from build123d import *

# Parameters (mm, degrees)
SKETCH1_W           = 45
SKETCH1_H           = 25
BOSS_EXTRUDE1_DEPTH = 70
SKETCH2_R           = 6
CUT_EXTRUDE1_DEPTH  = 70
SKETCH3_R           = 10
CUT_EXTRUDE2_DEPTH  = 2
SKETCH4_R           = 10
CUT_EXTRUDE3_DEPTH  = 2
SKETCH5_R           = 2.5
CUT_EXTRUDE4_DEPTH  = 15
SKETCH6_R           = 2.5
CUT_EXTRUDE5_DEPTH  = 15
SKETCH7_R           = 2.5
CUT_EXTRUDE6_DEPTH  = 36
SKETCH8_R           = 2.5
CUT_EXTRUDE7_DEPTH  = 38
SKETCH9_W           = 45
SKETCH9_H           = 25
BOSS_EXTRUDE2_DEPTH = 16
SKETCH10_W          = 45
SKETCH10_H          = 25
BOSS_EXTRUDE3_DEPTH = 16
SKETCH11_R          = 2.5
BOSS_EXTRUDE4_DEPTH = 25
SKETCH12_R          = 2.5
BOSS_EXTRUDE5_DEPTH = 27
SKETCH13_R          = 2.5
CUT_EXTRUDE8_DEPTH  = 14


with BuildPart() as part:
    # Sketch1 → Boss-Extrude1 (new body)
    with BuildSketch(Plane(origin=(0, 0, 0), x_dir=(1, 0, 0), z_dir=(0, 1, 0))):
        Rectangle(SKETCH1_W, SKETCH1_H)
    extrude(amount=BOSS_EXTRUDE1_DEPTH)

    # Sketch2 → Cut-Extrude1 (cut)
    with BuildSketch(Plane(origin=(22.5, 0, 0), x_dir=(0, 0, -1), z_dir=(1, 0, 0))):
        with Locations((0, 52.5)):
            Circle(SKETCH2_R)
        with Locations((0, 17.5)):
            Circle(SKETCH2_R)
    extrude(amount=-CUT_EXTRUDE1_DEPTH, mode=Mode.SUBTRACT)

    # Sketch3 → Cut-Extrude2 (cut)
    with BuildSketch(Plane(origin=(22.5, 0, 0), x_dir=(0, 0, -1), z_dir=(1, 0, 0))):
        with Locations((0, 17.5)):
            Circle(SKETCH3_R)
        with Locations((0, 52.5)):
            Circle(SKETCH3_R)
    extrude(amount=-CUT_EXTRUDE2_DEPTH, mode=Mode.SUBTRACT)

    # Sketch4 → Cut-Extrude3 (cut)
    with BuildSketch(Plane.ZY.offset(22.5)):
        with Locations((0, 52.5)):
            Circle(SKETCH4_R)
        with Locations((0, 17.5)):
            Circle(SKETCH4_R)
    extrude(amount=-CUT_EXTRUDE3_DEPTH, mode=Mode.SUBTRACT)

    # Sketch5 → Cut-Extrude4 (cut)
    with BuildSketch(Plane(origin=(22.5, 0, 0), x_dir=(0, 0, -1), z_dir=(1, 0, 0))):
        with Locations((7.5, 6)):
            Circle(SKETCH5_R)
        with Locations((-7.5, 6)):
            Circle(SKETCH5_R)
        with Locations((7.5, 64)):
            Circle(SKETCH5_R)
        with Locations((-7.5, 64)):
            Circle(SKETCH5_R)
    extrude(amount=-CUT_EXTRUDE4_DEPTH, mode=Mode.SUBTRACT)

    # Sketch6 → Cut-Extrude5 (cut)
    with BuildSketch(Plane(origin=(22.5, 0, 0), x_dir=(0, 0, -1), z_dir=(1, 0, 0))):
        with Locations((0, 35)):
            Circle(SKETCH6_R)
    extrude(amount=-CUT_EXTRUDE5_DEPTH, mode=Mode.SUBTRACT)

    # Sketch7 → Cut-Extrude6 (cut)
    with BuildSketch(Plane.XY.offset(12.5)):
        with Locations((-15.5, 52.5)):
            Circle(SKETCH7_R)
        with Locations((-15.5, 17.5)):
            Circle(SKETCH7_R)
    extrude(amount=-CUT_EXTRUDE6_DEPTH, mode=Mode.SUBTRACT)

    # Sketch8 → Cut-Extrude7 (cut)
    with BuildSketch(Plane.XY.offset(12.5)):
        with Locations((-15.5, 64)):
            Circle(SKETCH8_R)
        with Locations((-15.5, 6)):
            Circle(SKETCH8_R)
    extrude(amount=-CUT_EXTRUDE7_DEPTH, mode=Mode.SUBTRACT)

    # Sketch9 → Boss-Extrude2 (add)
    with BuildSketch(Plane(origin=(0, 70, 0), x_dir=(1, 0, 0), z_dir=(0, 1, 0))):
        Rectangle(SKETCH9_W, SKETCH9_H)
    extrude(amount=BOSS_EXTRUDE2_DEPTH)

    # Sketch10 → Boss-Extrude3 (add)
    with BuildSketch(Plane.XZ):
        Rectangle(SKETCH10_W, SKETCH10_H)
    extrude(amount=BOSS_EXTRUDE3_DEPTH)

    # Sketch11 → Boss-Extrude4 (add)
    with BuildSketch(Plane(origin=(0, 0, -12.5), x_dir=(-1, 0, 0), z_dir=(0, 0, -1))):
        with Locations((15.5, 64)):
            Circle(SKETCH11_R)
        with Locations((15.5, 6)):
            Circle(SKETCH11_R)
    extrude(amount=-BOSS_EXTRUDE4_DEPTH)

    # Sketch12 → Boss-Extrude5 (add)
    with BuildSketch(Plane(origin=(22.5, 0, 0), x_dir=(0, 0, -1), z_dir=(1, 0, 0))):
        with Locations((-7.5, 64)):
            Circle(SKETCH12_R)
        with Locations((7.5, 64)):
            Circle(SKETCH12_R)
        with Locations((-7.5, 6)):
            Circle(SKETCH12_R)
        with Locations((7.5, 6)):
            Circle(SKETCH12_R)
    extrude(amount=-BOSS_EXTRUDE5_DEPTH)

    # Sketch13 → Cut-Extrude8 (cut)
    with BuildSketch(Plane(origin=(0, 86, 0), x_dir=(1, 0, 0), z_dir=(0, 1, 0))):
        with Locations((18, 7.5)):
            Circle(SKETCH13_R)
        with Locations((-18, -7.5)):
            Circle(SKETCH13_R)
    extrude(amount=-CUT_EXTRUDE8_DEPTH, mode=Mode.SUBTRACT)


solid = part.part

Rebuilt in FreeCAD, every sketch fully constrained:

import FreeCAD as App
import Part
import Sketcher
from FreeCAD import Vector
Q = App.Units.Quantity


def add_polygon(sketch, points):
    """Adds a closed chain of lines whose ends are joined by coincident constraints."""
    first, n = sketch.GeometryCount, len(points)
    for a, b in zip(points, points[1:] + points[:1]):
        sketch.addGeometry(Part.LineSegment(App.Vector(*a, 0), App.Vector(*b, 0)), False)
    for i in range(n):
        sketch.addConstraint(Sketcher.Constraint("Coincident", first + i, 2, first + (i + 1) % n, 1))

doc = App.newDocument("Part")
body = doc.addObject("PartDesign::Body", "Body")

# Sketch on XZ plane
sketch1 = body.newObject("Sketcher::SketchObject", "Sketch")
sketch1.AttachmentSupport = (doc.getObject("XZ_Plane"), [""])
sketch1.MapMode = "FlatFace"
add_polygon(sketch1, [(-22, -12), (-22, 12), (22, 12), (22, -12)])  # lines 0-3
sketch1.addConstraint(Sketcher.Constraint("Vertical", 0))
sketch1.addConstraint(Sketcher.Constraint("Horizontal", 1))
sketch1.addConstraint(Sketcher.Constraint("Vertical", 2))
sketch1.addConstraint(Sketcher.Constraint("Horizontal", 3))
sketch1.addConstraint(Sketcher.Constraint("Symmetric", 0, 2, 2, 2, -1, 1))
sketch1.addConstraint(Sketcher.Constraint("DistanceX", 1, 1, 1, 2, Q("45 mm")))
sketch1.addConstraint(Sketcher.Constraint("DistanceY", 0, 1, 0, 2, Q("25 mm")))
pad1 = body.newObject("PartDesign::Pad", "Pad")
pad1.Profile = sketch1
pad1.Length = 70
pad1.Reversed = True

# Sketch on YZ plane
sketch2 = body.newObject("Sketcher::SketchObject", "Sketch001")
sketch2.AttachmentSupport = (doc.getObject("YZ_Plane"), [""])
sketch2.MapMode = "FlatFace"
sketch2.AttachmentOffset = App.Placement(Vector(0, 0, 22.5), App.Rotation())
sketch2.addGeometry(Part.Circle(Vector(52, 0, 0), Vector(0, 0, 1), 6), False)
sketch2.addGeometry(Part.Circle(Vector(18, 0, 0), Vector(0, 0, 1), 6), False)
sketch2.addConstraint(Sketcher.Constraint("Equal", 0, 1))
sketch2.addConstraint(Sketcher.Constraint("PointOnObject", 0, 3, -1))
sketch2.addConstraint(Sketcher.Constraint("PointOnObject", 1, 3, -1))
sketch2.addConstraint(Sketcher.Constraint("Diameter", 0, Q("12 mm")))
sketch2.addConstraint(Sketcher.Constraint("DistanceX", 1, 3, 0, 3, Q("35 mm")))
sketch2.addConstraint(Sketcher.Constraint("DistanceX", -1, 1, 0, 3, Q("52.5 mm")))
pocket1 = body.newObject("PartDesign::Pocket", "Pocket")
pocket1.Profile = sketch2
pocket1.Length = 70

# Sketch on YZ plane
sketch3 = body.newObject("Sketcher::SketchObject", "Sketch002")
sketch3.AttachmentSupport = (doc.getObject("YZ_Plane"), [""])
sketch3.MapMode = "FlatFace"
sketch3.AttachmentOffset = App.Placement(Vector(0, 0, 22.5), App.Rotation())
sketch3.addGeometry(Part.Circle(Vector(18, 0, 0), Vector(0, 0, 1), 10), False)
sketch3.addGeometry(Part.Circle(Vector(52, 0, 0), Vector(0, 0, 1), 10), False)
sketch3.addConstraint(Sketcher.Constraint("Equal", 0, 1))
sketch3.addConstraint(Sketcher.Constraint("PointOnObject", 0, 3, -1))
sketch3.addConstraint(Sketcher.Constraint("PointOnObject", 1, 3, -1))
sketch3.addConstraint(Sketcher.Constraint("Diameter", 0, Q("20 mm")))
sketch3.addConstraint(Sketcher.Constraint("DistanceX", 0, 3, 1, 3, Q("35 mm")))
sketch3.addConstraint(Sketcher.Constraint("DistanceX", -1, 1, 0, 3, Q("17.5 mm")))
pocket2 = body.newObject("PartDesign::Pocket", "Pocket001")
pocket2.Profile = sketch3
pocket2.Length = 2

# Sketch on YZ plane
sketch4 = body.newObject("Sketcher::SketchObject", "Sketch003")
sketch4.AttachmentSupport = (doc.getObject("YZ_Plane"), [""])
sketch4.MapMode = "FlatFace"
sketch4.AttachmentOffset = App.Placement(Vector(0, 0, -22.5), App.Rotation())
sketch4.addGeometry(Part.Circle(Vector(52, 0, 0), Vector(0, 0, 1), 10), False)
sketch4.addGeometry(Part.Circle(Vector(18, 0, 0), Vector(0, 0, 1), 10), False)
sketch4.addConstraint(Sketcher.Constraint("Equal", 0, 1))
sketch4.addConstraint(Sketcher.Constraint("PointOnObject", 0, 3, -1))
sketch4.addConstraint(Sketcher.Constraint("PointOnObject", 1, 3, -1))
sketch4.addConstraint(Sketcher.Constraint("Diameter", 0, Q("20 mm")))
sketch4.addConstraint(Sketcher.Constraint("DistanceX", 1, 3, 0, 3, Q("35 mm")))
sketch4.addConstraint(Sketcher.Constraint("DistanceX", -1, 1, 0, 3, Q("52.5 mm")))
pocket3 = body.newObject("PartDesign::Pocket", "Pocket002")
pocket3.Profile = sketch4
pocket3.Length = 2
pocket3.Reversed = True

# Sketch on YZ plane
sketch5 = body.newObject("Sketcher::SketchObject", "Sketch004")
sketch5.AttachmentSupport = (doc.getObject("YZ_Plane"), [""])
sketch5.MapMode = "FlatFace"
sketch5.AttachmentOffset = App.Placement(Vector(0, 0, 22.5), App.Rotation())
sketch5.addGeometry(Part.Circle(Vector(6, -7.5, 0), Vector(0, 0, 1), 2.5), False)
sketch5.addGeometry(Part.Circle(Vector(6, 7.5, 0), Vector(0, 0, 1), 2.5), False)
sketch5.addGeometry(Part.Circle(Vector(64, -7.5, 0), Vector(0, 0, 1), 2.5), False)
sketch5.addGeometry(Part.Circle(Vector(64, 7.5, 0), Vector(0, 0, 1), 2.5), False)
sketch5.addConstraint(Sketcher.Constraint("Equal", 0, 1))
sketch5.addConstraint(Sketcher.Constraint("Equal", 1, 2))
sketch5.addConstraint(Sketcher.Constraint("Equal", 2, 3))
sketch5.addConstraint(Sketcher.Constraint("Symmetric", 0, 3, 1, 3, -1))
sketch5.addConstraint(Sketcher.Constraint("Symmetric", 2, 3, 3, 3, -1))
sketch5.addConstraint(Sketcher.Constraint("Horizontal", 0, 3, 2, 3))
sketch5.addConstraint(Sketcher.Constraint("Diameter", 0, Q("5 mm")))
sketch5.addConstraint(Sketcher.Constraint("DistanceX", -1, 1, 0, 3, Q("6 mm")))
sketch5.addConstraint(Sketcher.Constraint("DistanceX", -1, 1, 2, 3, Q("64 mm")))
sketch5.addConstraint(Sketcher.Constraint("DistanceY", 0, 3, 1, 3, Q("15 mm")))
pocket4 = body.newObject("PartDesign::Pocket", "Pocket003")
pocket4.Profile = sketch5
pocket4.Length = 15

# Sketch on YZ plane
sketch6 = body.newObject("Sketcher::SketchObject", "Sketch005")
sketch6.AttachmentSupport = (doc.getObject("YZ_Plane"), [""])
sketch6.MapMode = "FlatFace"
sketch6.AttachmentOffset = App.Placement(Vector(0, 0, 22.5), App.Rotation())
sketch6.addGeometry(Part.Circle(Vector(35, 0, 0), Vector(0, 0, 1), 2.5), False)
sketch6.addConstraint(Sketcher.Constraint("PointOnObject", 0, 3, -1))
sketch6.addConstraint(Sketcher.Constraint("Diameter", 0, Q("5 mm")))
sketch6.addConstraint(Sketcher.Constraint("DistanceX", -1, 1, 0, 3, Q("35 mm")))
pocket5 = body.newObject("PartDesign::Pocket", "Pocket004")
pocket5.Profile = sketch6
pocket5.Length = 15

# Sketch on XY plane
sketch7 = body.newObject("Sketcher::SketchObject", "Sketch006")
sketch7.AttachmentSupport = (doc.getObject("XY_Plane"), [""])
sketch7.MapMode = "FlatFace"
sketch7.AttachmentOffset = App.Placement(Vector(0, 0, 12.5), App.Rotation())
sketch7.addGeometry(Part.Circle(Vector(-15.5, 52.5, 0), Vector(0, 0, 1), 2.5), False)
sketch7.addGeometry(Part.Circle(Vector(-15.5, 17.5, 0), Vector(0, 0, 1), 2.5), False)
sketch7.addConstraint(Sketcher.Constraint("Equal", 0, 1))
sketch7.addConstraint(Sketcher.Constraint("Vertical", 0, 3, 1, 3))
sketch7.addConstraint(Sketcher.Constraint("Diameter", 0, Q("5 mm")))
sketch7.addConstraint(Sketcher.Constraint("DistanceY", 1, 3, 0, 3, Q("35 mm")))
sketch7.addConstraint(Sketcher.Constraint("DistanceX", 0, 3, -1, 1, Q("15.5 mm")))
sketch7.addConstraint(Sketcher.Constraint("DistanceY", -1, 1, 0, 3, Q("52.5 mm")))
pocket6 = body.newObject("PartDesign::Pocket", "Pocket005")
pocket6.Profile = sketch7
pocket6.Length = 36

# Sketch on XY plane
sketch8 = body.newObject("Sketcher::SketchObject", "Sketch007")
sketch8.AttachmentSupport = (doc.getObject("XY_Plane"), [""])
sketch8.MapMode = "FlatFace"
sketch8.AttachmentOffset = App.Placement(Vector(0, 0, 12.5), App.Rotation())
sketch8.addGeometry(Part.Circle(Vector(-15.5, 64, 0), Vector(0, 0, 1), 2.5), False)
sketch8.addGeometry(Part.Circle(Vector(-15.5, 6, 0), Vector(0, 0, 1), 2.5), False)
sketch8.addConstraint(Sketcher.Constraint("Equal", 0, 1))
sketch8.addConstraint(Sketcher.Constraint("Vertical", 0, 3, 1, 3))
sketch8.addConstraint(Sketcher.Constraint("Diameter", 0, Q("5 mm")))
sketch8.addConstraint(Sketcher.Constraint("DistanceY", -1, 1, 0, 3, Q("64 mm")))
sketch8.addConstraint(Sketcher.Constraint("DistanceY", -1, 1, 1, 3, Q("6 mm")))
sketch8.addConstraint(Sketcher.Constraint("DistanceX", 0, 3, -1, 1, Q("15.5 mm")))
pocket7 = body.newObject("PartDesign::Pocket", "Pocket006")
pocket7.Profile = sketch8
pocket7.Length = 38

# Sketch on XZ plane
sketch9 = body.newObject("Sketcher::SketchObject", "Sketch008")
sketch9.AttachmentSupport = (doc.getObject("XZ_Plane"), [""])
sketch9.MapMode = "FlatFace"
sketch9.AttachmentOffset = App.Placement(Vector(0, 0, -70), App.Rotation())
add_polygon(sketch9, [(-22, -12), (-22, 12), (22, 12), (22, -12)])  # lines 0-3
sketch9.addConstraint(Sketcher.Constraint("Vertical", 0))
sketch9.addConstraint(Sketcher.Constraint("Horizontal", 1))
sketch9.addConstraint(Sketcher.Constraint("Vertical", 2))
sketch9.addConstraint(Sketcher.Constraint("Horizontal", 3))
sketch9.addConstraint(Sketcher.Constraint("Symmetric", 0, 2, 2, 2, -1, 1))
sketch9.addConstraint(Sketcher.Constraint("DistanceX", 1, 1, 1, 2, Q("45 mm")))
sketch9.addConstraint(Sketcher.Constraint("DistanceY", 0, 1, 0, 2, Q("25 mm")))
pad2 = body.newObject("PartDesign::Pad", "Pad001")
pad2.Profile = sketch9
pad2.Length = 16
pad2.Reversed = True

# Sketch on XZ plane
sketch10 = body.newObject("Sketcher::SketchObject", "Sketch009")
sketch10.AttachmentSupport = (doc.getObject("XZ_Plane"), [""])
sketch10.MapMode = "FlatFace"
add_polygon(sketch10, [(-22, 12), (-22, -12), (22, -12), (22, 12)])  # lines 0-3
sketch10.addConstraint(Sketcher.Constraint("Vertical", 0))
sketch10.addConstraint(Sketcher.Constraint("Horizontal", 1))
sketch10.addConstraint(Sketcher.Constraint("Vertical", 2))
sketch10.addConstraint(Sketcher.Constraint("Horizontal", 3))
sketch10.addConstraint(Sketcher.Constraint("Symmetric", 0, 2, 2, 2, -1, 1))
sketch10.addConstraint(Sketcher.Constraint("DistanceX", 1, 1, 1, 2, Q("45 mm")))
sketch10.addConstraint(Sketcher.Constraint("DistanceY", 0, 2, 0, 1, Q("25 mm")))
pad3 = body.newObject("PartDesign::Pad", "Pad002")
pad3.Profile = sketch10
pad3.Length = 16

# Sketch on XY plane
sketch11 = body.newObject("Sketcher::SketchObject", "Sketch010")
sketch11.AttachmentSupport = (doc.getObject("XY_Plane"), [""])
sketch11.MapMode = "FlatFace"
sketch11.AttachmentOffset = App.Placement(Vector(0, 0, -12.5), App.Rotation())
sketch11.addGeometry(Part.Circle(Vector(-15.5, 64, 0), Vector(0, 0, 1), 2.5), False)
sketch11.addGeometry(Part.Circle(Vector(-15.5, 6, 0), Vector(0, 0, 1), 2.5), False)
sketch11.addConstraint(Sketcher.Constraint("Equal", 0, 1))
sketch11.addConstraint(Sketcher.Constraint("Vertical", 0, 3, 1, 3))
sketch11.addConstraint(Sketcher.Constraint("Diameter", 0, Q("5 mm")))
sketch11.addConstraint(Sketcher.Constraint("DistanceY", -1, 1, 0, 3, Q("64 mm")))
sketch11.addConstraint(Sketcher.Constraint("DistanceY", -1, 1, 1, 3, Q("6 mm")))
sketch11.addConstraint(Sketcher.Constraint("DistanceX", 0, 3, -1, 1, Q("15.5 mm")))
pad4 = body.newObject("PartDesign::Pad", "Pad003")
pad4.Profile = sketch11
pad4.Length = 25

# Sketch on YZ plane
sketch12 = body.newObject("Sketcher::SketchObject", "Sketch011")
sketch12.AttachmentSupport = (doc.getObject("YZ_Plane"), [""])
sketch12.MapMode = "FlatFace"
sketch12.AttachmentOffset = App.Placement(Vector(0, 0, 22.5), App.Rotation())
sketch12.addGeometry(Part.Circle(Vector(64, 7.5, 0), Vector(0, 0, 1), 2.5), False)
sketch12.addGeometry(Part.Circle(Vector(64, -7.5, 0), Vector(0, 0, 1), 2.5), False)
sketch12.addGeometry(Part.Circle(Vector(6, 7.5, 0), Vector(0, 0, 1), 2.5), False)
sketch12.addGeometry(Part.Circle(Vector(6, -7.5, 0), Vector(0, 0, 1), 2.5), False)
sketch12.addConstraint(Sketcher.Constraint("Equal", 0, 1))
sketch12.addConstraint(Sketcher.Constraint("Equal", 1, 2))
sketch12.addConstraint(Sketcher.Constraint("Equal", 2, 3))
sketch12.addConstraint(Sketcher.Constraint("Symmetric", 0, 3, 1, 3, -1))
sketch12.addConstraint(Sketcher.Constraint("Symmetric", 2, 3, 3, 3, -1))
sketch12.addConstraint(Sketcher.Constraint("Horizontal", 0, 3, 2, 3))
sketch12.addConstraint(Sketcher.Constraint("Diameter", 0, Q("5 mm")))
sketch12.addConstraint(Sketcher.Constraint("DistanceX", -1, 1, 0, 3, Q("64 mm")))
sketch12.addConstraint(Sketcher.Constraint("DistanceX", -1, 1, 2, 3, Q("6 mm")))
sketch12.addConstraint(Sketcher.Constraint("DistanceY", 1, 3, 0, 3, Q("15 mm")))
pad5 = body.newObject("PartDesign::Pad", "Pad004")
pad5.Profile = sketch12
pad5.Length = 27
pad5.Reversed = True

# Sketch on XZ plane
sketch13 = body.newObject("Sketcher::SketchObject", "Sketch012")
sketch13.AttachmentSupport = (doc.getObject("XZ_Plane"), [""])
sketch13.MapMode = "FlatFace"
sketch13.AttachmentOffset = App.Placement(Vector(0, 0, -86), App.Rotation())
sketch13.addGeometry(Part.Circle(Vector(18, -7.5, 0), Vector(0, 0, 1), 2.5), False)
sketch13.addGeometry(Part.Circle(Vector(-18, 7.5, 0), Vector(0, 0, 1), 2.5), False)
sketch13.addConstraint(Sketcher.Constraint("Equal", 0, 1))
sketch13.addConstraint(Sketcher.Constraint("Symmetric", 0, 3, 1, 3, -1, 1))
sketch13.addConstraint(Sketcher.Constraint("Diameter", 0, Q("5 mm")))
sketch13.addConstraint(Sketcher.Constraint("DistanceX", -1, 1, 0, 3, Q("18 mm")))
sketch13.addConstraint(Sketcher.Constraint("DistanceY", 0, 3, 1, 3, Q("15 mm")))
pocket8 = body.newObject("PartDesign::Pocket", "Pocket007")
pocket8.Profile = sketch13
pocket8.Length = 14
pocket8.Reversed = True

doc.recompute()
